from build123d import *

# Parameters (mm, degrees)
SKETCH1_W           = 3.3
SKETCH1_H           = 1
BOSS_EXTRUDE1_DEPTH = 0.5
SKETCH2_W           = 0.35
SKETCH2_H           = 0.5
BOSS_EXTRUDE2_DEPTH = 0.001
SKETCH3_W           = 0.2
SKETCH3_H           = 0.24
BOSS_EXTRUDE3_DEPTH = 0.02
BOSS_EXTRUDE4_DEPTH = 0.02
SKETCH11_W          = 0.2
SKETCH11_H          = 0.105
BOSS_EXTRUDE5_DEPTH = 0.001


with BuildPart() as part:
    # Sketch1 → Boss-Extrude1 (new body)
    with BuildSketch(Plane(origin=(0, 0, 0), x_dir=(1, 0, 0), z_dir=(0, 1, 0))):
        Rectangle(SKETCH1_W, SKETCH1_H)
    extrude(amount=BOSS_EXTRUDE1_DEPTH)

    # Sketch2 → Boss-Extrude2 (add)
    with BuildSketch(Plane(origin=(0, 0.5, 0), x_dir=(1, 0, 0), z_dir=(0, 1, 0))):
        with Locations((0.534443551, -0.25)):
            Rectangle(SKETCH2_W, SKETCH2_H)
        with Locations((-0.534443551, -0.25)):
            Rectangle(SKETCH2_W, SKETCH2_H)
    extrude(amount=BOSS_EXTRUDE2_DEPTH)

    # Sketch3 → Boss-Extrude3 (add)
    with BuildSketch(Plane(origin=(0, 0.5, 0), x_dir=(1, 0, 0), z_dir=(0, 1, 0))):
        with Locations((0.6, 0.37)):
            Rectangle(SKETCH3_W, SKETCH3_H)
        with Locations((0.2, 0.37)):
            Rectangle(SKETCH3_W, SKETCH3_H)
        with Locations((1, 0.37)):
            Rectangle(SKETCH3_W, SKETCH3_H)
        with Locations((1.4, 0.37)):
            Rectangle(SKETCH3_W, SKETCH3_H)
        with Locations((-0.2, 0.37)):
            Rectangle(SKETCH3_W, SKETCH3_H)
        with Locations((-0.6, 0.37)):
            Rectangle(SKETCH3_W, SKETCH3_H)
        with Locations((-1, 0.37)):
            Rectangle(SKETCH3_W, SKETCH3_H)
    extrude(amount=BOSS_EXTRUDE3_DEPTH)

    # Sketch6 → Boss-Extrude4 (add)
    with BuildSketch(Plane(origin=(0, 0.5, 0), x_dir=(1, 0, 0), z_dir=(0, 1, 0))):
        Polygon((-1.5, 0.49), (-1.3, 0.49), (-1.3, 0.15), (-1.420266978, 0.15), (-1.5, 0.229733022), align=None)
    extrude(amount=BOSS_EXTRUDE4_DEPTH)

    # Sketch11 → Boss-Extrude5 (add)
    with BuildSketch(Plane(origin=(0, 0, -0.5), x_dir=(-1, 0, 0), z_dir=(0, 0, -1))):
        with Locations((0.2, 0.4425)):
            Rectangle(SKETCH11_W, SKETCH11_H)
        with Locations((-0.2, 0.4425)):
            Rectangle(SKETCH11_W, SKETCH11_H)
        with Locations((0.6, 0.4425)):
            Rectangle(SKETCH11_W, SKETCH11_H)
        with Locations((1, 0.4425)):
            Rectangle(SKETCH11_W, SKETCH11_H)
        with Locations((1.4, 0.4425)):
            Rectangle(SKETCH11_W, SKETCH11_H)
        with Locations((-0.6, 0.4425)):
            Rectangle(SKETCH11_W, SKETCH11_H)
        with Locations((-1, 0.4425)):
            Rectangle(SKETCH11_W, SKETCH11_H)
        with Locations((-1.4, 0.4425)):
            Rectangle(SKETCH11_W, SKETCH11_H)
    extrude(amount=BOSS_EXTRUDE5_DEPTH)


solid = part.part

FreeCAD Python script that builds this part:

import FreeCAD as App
import Part
import Sketcher

V = App.Vector
Q = App.Units.Quantity


def add_polygon(sketch, points):
    """Adds a closed chain of lines whose ends are joined by coincident constraints."""
    first, n = sketch.GeometryCount, len(points)
    for a, b in zip(points, points[1:] + points[:1]):
        sketch.addGeometry(Part.LineSegment(App.Vector(*a, 0), App.Vector(*b, 0)), False)
    for i in range(n):
        sketch.addConstraint(Sketcher.Constraint("Coincident", first + i, 2, first + (i + 1) % n, 1))

doc = App.newDocument("Part")
body = doc.addObject("PartDesign::Body", "Body")

sketch1 = body.newObject("Sketcher::SketchObject", "Sketch")
sketch1.AttachmentSupport = (doc.getObject("XZ_Plane"), [""])
sketch1.MapMode = "FlatFace"
add_polygon(sketch1, [(-1.65, -0.5), (-1.65, 0.5), (1.65, 0.5), (1.65, -0.5)])
sketch1.addConstraint([
    Sketcher.Constraint("Vertical", 0),
    Sketcher.Constraint("Horizontal", 1),
    Sketcher.Constraint("Vertical", 2),
    Sketcher.Constraint("Horizontal", 3),
    Sketcher.Constraint("Symmetric", 0, 2, 2, 2, -1, 1),
    Sketcher.Constraint("DistanceY", 0, 1, 0, 2, 1.0),
    Sketcher.Constraint("DistanceX", 1, 1, 1, 2, 3.3),
])
pad1 = body.newObject("PartDesign::Pad", "Pad")
pad1.Profile = sketch1
pad1.Length = 0.5
pad1.Reversed = True

sketch2 = body.newObject("Sketcher::SketchObject", "Sketch001")
sketch2.AttachmentSupport = (doc.getObject("XZ_Plane"), [""])
sketch2.MapMode = "FlatFace"
sketch2.AttachmentOffset = App.Placement(V(0, 0, -0.5), App.Rotation())
add_polygon(sketch2, [(0.359444, 0), (0.359444, 0.5), (0.709444, 0.5), (0.709444, 0)])
add_polygon(sketch2, [(-0.709444, 0), (-0.709444, 0.5), (-0.359444, 0.5), (-0.359444, 0)])
sketch2.addConstraint([
    Sketcher.Constraint("Vertical", 0),
    Sketcher.Constraint("Horizontal", 1),
    Sketcher.Constraint("Vertical", 2),
    Sketcher.Constraint("Horizontal", 3),
    Sketcher.Constraint("Vertical", 4),
    Sketcher.Constraint("Horizontal", 5),
    Sketcher.Constraint("Vertical", 6),
    Sketcher.Constraint("Horizontal", 7),
    Sketcher.Constraint("Symmetric", 3, 2, 6, 2, -1, 1),
    Sketcher.Constraint("Symmetric", 1, 2, 4, 2, -2),
    Sketcher.Constraint("PointOnObject", 2, 2, -1),
    Sketcher.Constraint("DistanceY", 0, 1, 0, 2, 0.5),
    Sketcher.Constraint("DistanceX", 1, 1, 1, 2, 0.35),
    Sketcher.Constraint("DistanceX", -1, 1, 0, 2, 0.359444),
])
pad2 = body.newObject("PartDesign::Pad", "Pad001")
pad2.Profile = sketch2
pad2.Length = 0.001
pad2.Reversed = True

sketch3 = body.newObject("Sketcher::SketchObject", "Sketch002")
sketch3.AttachmentSupport = (doc.getObject("XZ_Plane"), [""])
sketch3.MapMode = "FlatFace"
sketch3.AttachmentOffset = App.Placement(V(0, 0, -0.5), App.Rotation())
add_polygon(sketch3, [(0.5, -0.49), (0.5, -0.25), (0.7, -0.25), (0.7, -0.49)])
add_polygon(sketch3, [(0.1, -0.49), (0.1, -0.25), (0.3, -0.25), (0.3, -0.49)])
add_polygon(sketch3, [(0.9, -0.49), (0.9, -0.25), (1.1, -0.25), (1.1, -0.49)])
add_polygon(sketch3, [(1.3, -0.49), (1.3, -0.25), (1.5, -0.25), (1.5, -0.49)])
add_polygon(sketch3, [(-0.3, -0.49), (-0.3, -0.25), (-0.1, -0.25), (-0.1, -0.49)])
add_polygon(sketch3, [(-0.7, -0.49), (-0.7, -0.25), (-0.5, -0.25), (-0.5, -0.49)])
add_polygon(sketch3, [(-1.1, -0.49), (-1.1, -0.25), (-0.9, -0.25), (-0.9, -0.49)])
sketch3.addConstraint([
    Sketcher.Constraint("Vertical", 0),
    Sketcher.Constraint("Horizontal", 1),
    Sketcher.Constraint("Vertical", 2),
    Sketcher.Constraint("Horizontal", 3),
    Sketcher.Constraint("Vertical", 4),
    Sketcher.Constraint("Horizontal", 5),
    Sketcher.Constraint("Vertical", 6),
    Sketcher.Constraint("Horizontal", 7),
    Sketcher.Constraint("Vertical", 8),
    Sketcher.Constraint("Horizontal", 9),
    Sketcher.Constraint("Vertical", 10),
    Sketcher.Constraint("Horizontal", 11),
    Sketcher.Constraint("Vertical", 12),
    Sketcher.Constraint("Horizontal", 13),
    Sketcher.Constraint("Vertical", 14),
    Sketcher.Constraint("Horizontal", 15),
    Sketcher.Constraint("Vertical", 16),
    Sketcher.Constraint("Horizontal", 17),
    Sketcher.Constraint("Vertical", 18),
    Sketcher.Constraint("Horizontal", 19),
    Sketcher.Constraint("Vertical", 20),
    Sketcher.Constraint("Horizontal", 21),
    Sketcher.Constraint("Vertical", 22),
    Sketcher.Constraint("Horizontal", 23),
    Sketcher.Constraint("Vertical", 24),
    Sketcher.Constraint("Horizontal", 25),
    Sketcher.Constraint("Vertical", 26),
    Sketcher.Constraint("Horizontal", 27),
    Sketcher.Constraint("Symmetric", 5, 2, 16, 2, -2),
    Sketcher.Constraint("Symmetric", 7, 2, 18, 2, -2),
    Sketcher.Constraint("Symmetric", 1, 2, 20, 2, -2),
    Sketcher.Constraint("Symmetric", 3, 2, 22, 2, -2),
    Sketcher.Constraint("Symmetric", 9, 2, 24, 2, -2),
    Sketcher.Constraint("Symmetric", 11, 2, 26, 2, -2),
    Sketcher.Constraint("Horizontal", 1, 2, 4, 2),
    Sketcher.Constraint("Horizontal", 3, 2, 6, 2),
    Sketcher.Constraint("Horizontal", 5, 2, 8, 2),
    Sketcher.Constraint("Horizontal", 7, 2, 10, 2),
    Sketcher.Constraint("Horizontal", 9, 2, 12, 2),
    Sketcher.Constraint("Horizontal", 11, 2, 14, 2),
    Sketcher.Constraint("Equal", 3, 5),
    Sketcher.Constraint("Equal", 7, 9),
    Sketcher.Constraint("Equal", 11, 13),
    Sketcher.Constraint("DistanceX", 1, 1, 1, 2, 0.2),
    Sketcher.Constraint("DistanceY", 0, 1, 0, 2, 0.24),
    Sketcher.Constraint("DistanceX", -1, 1, 0, 2, 0.5),
    Sketcher.Constraint("DistanceX", -1, 1, 4, 2, 0.1),
    Sketcher.Constraint("DistanceX", -1, 1, 8, 2, 0.9),
    Sketcher.Constraint("DistanceX", -1, 1, 12, 2, 1.3),
    Sketcher.Constraint("DistanceY", 0, 2, -1, 1, 0.25),
])
pad3 = body.newObject("PartDesign::Pad", "Pad002")
pad3.Profile = sketch3
pad3.Length = 0.02
pad3.Reversed = True

sketch4 = body.newObject("Sketcher::SketchObject", "Sketch003")
sketch4.AttachmentSupport = (doc.getObject("XZ_Plane"), [""])
sketch4.MapMode = "FlatFace"
sketch4.AttachmentOffset = App.Placement(V(0, 0, -0.5), App.Rotation())
add_polygon(sketch4, [(-1.3, -0.49), (-1.5, -0.49), (-1.5, -0.229733), (-1.420267, -0.15), (-1.3, -0.15)])
sketch4.addConstraint([
    Sketcher.Constraint("Horizontal", 0),
    Sketcher.Constraint("Vertical", 1),
    Sketcher.Constraint("Horizontal", 3),
    Sketcher.Constraint("Vertical", 4),
    Sketcher.Constraint("Angle", 2, Q("45 deg")),
    Sketcher.Constraint("DistanceX", 0, 2, 0, 1, 0.2),
    Sketcher.Constraint("DistanceY", 4, 2, 4, 1, 0.34),
    Sketcher.Constraint("DistanceX", 0, 2, -1, 1, 1.5),
    Sketcher.Constraint("DistanceY", 0, 2, -1, 1, 0.49),
    Sketcher.Constraint("Distance", 2, 0.11276),
])
pad4 = body.newObject("PartDesign::Pad", "Pad003")
pad4.Profile = sketch4
pad4.Length = 0.02
pad4.Reversed = True

sketch5 = body.newObject("Sketcher::SketchObject", "Sketch004")
sketch5.AttachmentSupport = (doc.getObject("XY_Plane"), [""])
sketch5.MapMode = "FlatFace"
sketch5.AttachmentOffset = App.Placement(V(0, 0, -0.5), App.Rotation())
add_polygon(sketch5, [(-0.1, 0.495), (-0.1, 0.39), (-0.3, 0.39), (-0.3, 0.495)])
add_polygon(sketch5, [(0.3, 0.495), (0.3, 0.39), (0.1, 0.39), (0.1, 0.495)])
add_polygon(sketch5, [(-0.5, 0.495), (-0.5, 0.39), (-0.7, 0.39), (-0.7, 0.495)])
add_polygon(sketch5, [(-0.9, 0.495), (-0.9, 0.39), (-1.1, 0.39), (-1.1, 0.495)])
add_polygon(sketch5, [(-1.3, 0.495), (-1.3, 0.39), (-1.5, 0.39), (-1.5, 0.495)])
add_polygon(sketch5, [(0.7, 0.495), (0.7, 0.39), (0.5, 0.39), (0.5, 0.495)])
add_polygon(sketch5, [(1.1, 0.495), (1.1, 0.39), (0.9, 0.39), (0.9, 0.495)])
add_polygon(sketch5, [(1.5, 0.495), (1.5, 0.39), (1.3, 0.39), (1.3, 0.495)])
sketch5.addConstraint([
    Sketcher.Constraint("Vertical", 0),
    Sketcher.Constraint("Horizontal", 1),
    Sketcher.Constraint("Vertical", 2),
    Sketcher.Constraint("Horizontal", 3),
    Sketcher.Constraint("Vertical", 4),
    Sketcher.Constraint("Horizontal", 5),
    Sketcher.Constraint("Vertical", 6),
    Sketcher.Constraint("Horizontal", 7),
    Sketcher.Constraint("Vertical", 8),
    Sketcher.Constraint("Horizontal", 9),
    Sketcher.Constraint("Vertical", 10),
    Sketcher.Constraint("Horizontal", 11),
    Sketcher.Constraint("Vertical", 12),
    Sketcher.Constraint("Horizontal", 13),
    Sketcher.Constraint("Vertical", 14),
    Sketcher.Constraint("Horizontal", 15),
    Sketcher.Constraint("Vertical", 16),
    Sketcher.Constraint("Horizontal", 17),
    Sketcher.Constraint("Vertical", 18),
    Sketcher.Constraint("Horizontal", 19),
    Sketcher.Constraint("Vertical", 20),
    Sketcher.Constraint("Horizontal", 21),
    Sketcher.Constraint("Vertical", 22),
    Sketcher.Constraint("Horizontal", 23),
    Sketcher.Constraint("Vertical", 24),
    Sketcher.Constraint("Horizontal", 25),
    Sketcher.Constraint("Vertical", 26),
    Sketcher.Constraint("Horizontal", 27),
    Sketcher.Constraint("Vertical", 28),
    Sketcher.Constraint("Horizontal", 29),
    Sketcher.Constraint("Vertical", 30),
    Sketcher.Constraint("Horizontal", 31),
    Sketcher.Constraint("Symmetric", 1, 2, 4, 2, -2),
    Sketcher.Constraint("Symmetric", 3, 2, 6, 2, -2),
    Sketcher.Constraint("Symmetric", 9, 2, 20, 2, -2),
    Sketcher.Constraint("Symmetric", 11, 2, 22, 2, -2),
    Sketcher.Constraint("Symmetric", 13, 2, 24, 2, -2),
    Sketcher.Constraint("Symmetric", 15, 2, 26, 2, -2),
    Sketcher.Constraint("Symmetric", 17, 2, 28, 2, -2),
    Sketcher.Constraint("Symmetric", 19, 2, 30, 2, -2),
    Sketcher.Constraint("Horizontal", 5, 2, 8, 2),
    Sketcher.Constraint("Horizontal", 7, 2, 10, 2),
    Sketcher.Constraint("Horizontal", 9, 2, 12, 2),
    Sketcher.Constraint("Horizontal", 11, 2, 14, 2),
    Sketcher.Constraint("Horizontal", 13, 2, 16, 2),
    Sketcher.Constraint("Horizontal", 15, 2, 18, 2),
    Sketcher.Constraint("Equal", 7, 9),
    Sketcher.Constraint("Equal", 11, 13),
    Sketcher.Constraint("Equal", 15, 17),
    Sketcher.Constraint("DistanceX", 1, 2, 1, 1, 0.2),
    Sketcher.Constraint("DistanceX", 0, 2, -1, 1, 0.1),
    Sketcher.Constraint("DistanceX", 8, 2, -1, 1, 0.5),
    Sketcher.Constraint("DistanceX", 12, 2, -1, 1, 0.9),
    Sketcher.Constraint("DistanceX", 16, 2, -1, 1, 1.3),
    Sketcher.Constraint("DistanceY", 0, 2, 0, 1, 0.105),
    Sketcher.Constraint("DistanceY", -1, 1, 0, 2, 0.39),
])
pad5 = body.newObject("PartDesign::Pad", "Pad004")
pad5.Profile = sketch5
pad5.Length = 0.001
pad5.Reversed = True

doc.recompute()
